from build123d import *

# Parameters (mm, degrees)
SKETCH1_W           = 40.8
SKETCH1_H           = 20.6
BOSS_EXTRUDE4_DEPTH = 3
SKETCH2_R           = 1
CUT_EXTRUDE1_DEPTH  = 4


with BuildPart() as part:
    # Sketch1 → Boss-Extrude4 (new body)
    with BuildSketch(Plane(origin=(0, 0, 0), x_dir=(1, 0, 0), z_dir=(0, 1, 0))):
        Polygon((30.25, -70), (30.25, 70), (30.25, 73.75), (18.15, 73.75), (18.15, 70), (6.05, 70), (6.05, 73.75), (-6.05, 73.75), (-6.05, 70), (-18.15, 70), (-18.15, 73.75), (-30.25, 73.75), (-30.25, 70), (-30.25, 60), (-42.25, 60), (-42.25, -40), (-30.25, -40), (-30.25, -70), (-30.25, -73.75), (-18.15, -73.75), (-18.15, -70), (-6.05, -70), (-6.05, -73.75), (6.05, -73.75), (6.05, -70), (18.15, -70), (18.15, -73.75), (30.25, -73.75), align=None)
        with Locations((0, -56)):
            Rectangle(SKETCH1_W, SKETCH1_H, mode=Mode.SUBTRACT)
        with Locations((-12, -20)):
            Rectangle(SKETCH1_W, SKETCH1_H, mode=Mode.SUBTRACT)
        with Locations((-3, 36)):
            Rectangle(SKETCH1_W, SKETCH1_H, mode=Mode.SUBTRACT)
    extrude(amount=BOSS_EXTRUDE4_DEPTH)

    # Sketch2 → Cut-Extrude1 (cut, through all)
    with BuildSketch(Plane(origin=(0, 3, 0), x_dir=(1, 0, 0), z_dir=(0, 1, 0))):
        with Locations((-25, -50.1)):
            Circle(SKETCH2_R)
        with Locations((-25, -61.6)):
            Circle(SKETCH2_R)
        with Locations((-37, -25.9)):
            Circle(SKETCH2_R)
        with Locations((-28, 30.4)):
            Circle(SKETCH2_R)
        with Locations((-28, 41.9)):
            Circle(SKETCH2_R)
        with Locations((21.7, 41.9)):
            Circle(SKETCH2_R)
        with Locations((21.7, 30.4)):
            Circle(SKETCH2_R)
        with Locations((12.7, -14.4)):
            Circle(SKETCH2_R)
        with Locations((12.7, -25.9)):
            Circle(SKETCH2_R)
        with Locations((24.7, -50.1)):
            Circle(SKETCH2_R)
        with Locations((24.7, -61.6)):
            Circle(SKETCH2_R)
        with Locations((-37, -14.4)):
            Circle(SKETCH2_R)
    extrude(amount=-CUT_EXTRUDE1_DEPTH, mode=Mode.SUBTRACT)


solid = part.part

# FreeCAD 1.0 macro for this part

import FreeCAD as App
import Part
import Sketcher
Q = App.Units.Quantity


def add_polygon(sketch, points):
    """Adds a closed chain of lines whose ends are joined by coincident constraints."""
    first, n = sketch.GeometryCount, len(points)
    for a, b in zip(points, points[1:] + points[:1]):
        sketch.addGeometry(Part.LineSegment(App.Vector(*a, 0), App.Vector(*b, 0)), False)
    for i in range(n):
        sketch.addConstraint(Sketcher.Constraint("Coincident", first + i, 2, first + (i + 1) % n, 1))

doc = App.newDocument("Part")
body = doc.addObject("PartDesign::Body", "Body")

sketch1 = body.newObject("Sketcher::SketchObject", "Sketch")
sketch1.AttachmentSupport = (doc.getObject("XZ_Plane"), [""])
sketch1.MapMode = "FlatFace"
add_polygon(sketch1, [(30.25, -73.75), (18.15, -73.75), (18.15, -70), (6.05, -70), (6.05, -73.75), (-6.05, -73.75), (-6.05, -70), (-18.15, -70), (-18.15, -73.75), (-30.25, -73.75), (-30.25, -60), (-42.25, -60), (-42.25, 40), (-30.25, 40), (-30.25, 73.75), (-18.15, 73.75), (-18.15, 70), (-6.05, 70), (-6.05, 73.75), (6.05, 73.75), (6.05, 70), (18.15, 70), (18.15, 73.75), (30.25, 73.75)])
add_polygon(sketch1, [(8.4, 30.3), (-32.4, 30.3), (-32.4, 9.7), (8.4, 9.7)])
add_polygon(sketch1, [(20.4, 66.3), (-20.4, 66.3), (-20.4, 45.7), (20.4, 45.7)])
add_polygon(sketch1, [(17.4, -25.7), (-23.4, -25.7), (-23.4, -46.3), (17.4, -46.3)])
sketch1.addConstraint(Sketcher.Constraint("Horizontal", 0))
sketch1.addConstraint(Sketcher.Constraint("Vertical", 1))
sketch1.addConstraint(Sketcher.Constraint("Horizontal", 2))
sketch1.addConstraint(Sketcher.Constraint("Vertical", 3))
sketch1.addConstraint(Sketcher.Constraint("Horizontal", 4))
sketch1.addConstraint(Sketcher.Constraint("Vertical", 5))
sketch1.addConstraint(Sketcher.Constraint("Horizontal", 6))
sketch1.addConstraint(Sketcher.Constraint("Vertical", 7))
sketch1.addConstraint(Sketcher.Constraint("Horizontal", 8))
sketch1.addConstraint(Sketcher.Constraint("Vertical", 9))
sketch1.addConstraint(Sketcher.Constraint("Horizontal", 10))
sketch1.addConstraint(Sketcher.Constraint("Vertical", 11))
sketch1.addConstraint(Sketcher.Constraint("Horizontal", 12))
sketch1.addConstraint(Sketcher.Constraint("Vertical", 13))
sketch1.addConstraint(Sketcher.Constraint("Horizontal", 14))
sketch1.addConstraint(Sketcher.Constraint("Vertical", 15))
sketch1.addConstraint(Sketcher.Constraint("Horizontal", 16))
sketch1.addConstraint(Sketcher.Constraint("Vertical", 17))
sketch1.addConstraint(Sketcher.Constraint("Horizontal", 18))
sketch1.addConstraint(Sketcher.Constraint("Vertical", 19))
sketch1.addConstraint(Sketcher.Constraint("Horizontal", 20))
sketch1.addConstraint(Sketcher.Constraint("Vertical", 21))
sketch1.addConstraint(Sketcher.Constraint("Horizontal", 22))
sketch1.addConstraint(Sketcher.Constraint("Vertical", 23))
sketch1.addConstraint(Sketcher.Constraint("Horizontal", 24))
sketch1.addConstraint(Sketcher.Constraint("Vertical", 25))
sketch1.addConstraint(Sketcher.Constraint("Horizontal", 26))
sketch1.addConstraint(Sketcher.Constraint("Vertical", 27))
sketch1.addConstraint(Sketcher.Constraint("Horizontal", 28))
sketch1.addConstraint(Sketcher.Constraint("Vertical", 29))
sketch1.addConstraint(Sketcher.Constraint("Horizontal", 30))
sketch1.addConstraint(Sketcher.Constraint("Vertical", 31))
sketch1.addConstraint(Sketcher.Constraint("Horizontal", 32))
sketch1.addConstraint(Sketcher.Constraint("Vertical", 33))
sketch1.addConstraint(Sketcher.Constraint("Horizontal", 34))
sketch1.addConstraint(Sketcher.Constraint("Vertical", 35))
sketch1.addConstraint(Sketcher.Constraint("Symmetric", 0, 2, 14, 2, -1, 1))
sketch1.addConstraint(Sketcher.Constraint("Symmetric", 2, 2, 16, 2, -1, 1))
sketch1.addConstraint(Sketcher.Constraint("Symmetric", 4, 2, 18, 2, -1, 1))
sketch1.addConstraint(Sketcher.Constraint("Symmetric", 6, 2, 20, 2, -1, 1))
sketch1.addConstraint(Sketcher.Constraint("Symmetric", 8, 2, 22, 2, -1, 1))
sketch1.addConstraint(Sketcher.Constraint("Symmetric", 2, 2, 5, 2, -2))
sketch1.addConstraint(Sketcher.Constraint("Symmetric", 0, 2, 7, 2, -2))
sketch1.addConstraint(Sketcher.Constraint("Horizontal", 0, 2, 3, 2))
sketch1.addConstraint(Sketcher.Constraint("Vertical", 9, 2, 12, 2))
sketch1.addConstraint(Sketcher.Constraint("Equal", 0, 2))
sketch1.addConstraint(Sketcher.Constraint("Equal", 2, 4))
sketch1.addConstraint(Sketcher.Constraint("Equal", 26, 28))
sketch1.addConstraint(Sketcher.Constraint("Equal", 30, 32))
sketch1.addConstraint(Sketcher.Constraint("Equal", 27, 29))
sketch1.addConstraint(Sketcher.Constraint("Equal", 31, 33))
sketch1.addConstraint(Sketcher.Constraint("DistanceX", 10, 2, 10, 1, Q("12 mm")))
sketch1.addConstraint(Sketcher.Constraint("DistanceY", 11, 1, 11, 2, Q("100 mm")))
sketch1.addConstraint(Sketcher.Constraint("DistanceX", 0, 2, 0, 1, Q("12.1 mm")))
sketch1.addConstraint(Sketcher.Constraint("DistanceX", 24, 2, 24, 1, Q("40.8 mm")))
sketch1.addConstraint(Sketcher.Constraint("DistanceY", 23, 2, 23, 1, Q("147.5 mm")))
sketch1.addConstraint(Sketcher.Constraint("DistanceY", 25, 2, 25, 1, Q("20.6 mm")))
sketch1.addConstraint(Sketcher.Constraint("DistanceY", 1, 2, -1, 1, Q("70 mm")))
sketch1.addConstraint(Sketcher.Constraint("DistanceY", 9, 2, -1, 1, Q("60 mm")))
sketch1.addConstraint(Sketcher.Constraint("DistanceX", 24, 2, 29, 2, Q("12 mm")))
sketch1.addConstraint(Sketcher.Constraint("DistanceX", 25, 2, 32, 2, Q("9 mm")))
sketch1.addConstraint(Sketcher.Constraint("DistanceX", 24, 2, -1, 1, Q("32.4 mm")))
sketch1.addConstraint(Sketcher.Constraint("DistanceY", -1, 1, 24, 2, Q("30.3 mm")))
sketch1.addConstraint(Sketcher.Constraint("DistanceY", -1, 1, 28, 2, Q("66.3 mm")))
sketch1.addConstraint(Sketcher.Constraint("DistanceY", 32, 2, -1, 1, Q("25.7 mm")))
pad1 = body.newObject("PartDesign::Pad", "Pad")
pad1.Profile = sketch1
pad1.Length = 3
pad1.Reversed = True

sketch2 = body.newObject("Sketcher::SketchObject", "Sketch001")
sketch2.AttachmentSupport = (doc.getObject("XZ_Plane"), [""])
sketch2.MapMode = "FlatFace"
sketch2.AttachmentOffset = App.Placement(App.Vector(0, 0, -3), App.Rotation())
sketch2.addGeometry(Part.Circle(App.Vector(-25, 50.1, 0), App.Vector(0, 0, 1), 1), False)
sketch2.addGeometry(Part.Circle(App.Vector(-25, 61.6, 0), App.Vector(0, 0, 1), 1), False)
sketch2.addGeometry(Part.Circle(App.Vector(-37, 25.9, 0), App.Vector(0, 0, 1), 1), False)
sketch2.addGeometry(Part.Circle(App.Vector(-28, -30.4, 0), App.Vector(0, 0, 1), 1), False)
sketch2.addGeometry(Part.Circle(App.Vector(-28, -41.9, 0), App.Vector(0, 0, 1), 1), False)
sketch2.addGeometry(Part.Circle(App.Vector(21.7, -41.9, 0), App.Vector(0, 0, 1), 1), False)
sketch2.addGeometry(Part.Circle(App.Vector(21.7, -30.4, 0), App.Vector(0, 0, 1), 1), False)
sketch2.addGeometry(Part.Circle(App.Vector(12.7, 14.4, 0), App.Vector(0, 0, 1), 1), False)
sketch2.addGeometry(Part.Circle(App.Vector(12.7, 25.9, 0), App.Vector(0, 0, 1), 1), False)
sketch2.addGeometry(Part.Circle(App.Vector(24.7, 50.1, 0), App.Vector(0, 0, 1), 1), False)
sketch2.addGeometry(Part.Circle(App.Vector(24.7, 61.6, 0), App.Vector(0, 0, 1), 1), False)
sketch2.addGeometry(Part.Circle(App.Vector(-37, 14.4, 0), App.Vector(0, 0, 1), 1), False)
sketch2.addConstraint(Sketcher.Constraint("Equal", 0, 1))
sketch2.addConstraint(Sketcher.Constraint("Equal", 1, 2))
sketch2.addConstraint(Sketcher.Constraint("Equal", 2, 3))
sketch2.addConstraint(Sketcher.Constraint("Equal", 3, 4))
sketch2.addConstraint(Sketcher.Constraint("Equal", 4, 5))
sketch2.addConstraint(Sketcher.Constraint("Equal", 5, 6))
sketch2.addConstraint(Sketcher.Constraint("Equal", 6, 7))
sketch2.addConstraint(Sketcher.Constraint("Equal", 7, 8))
sketch2.addConstraint(Sketcher.Constraint("Equal", 8, 9))
sketch2.addConstraint(Sketcher.Constraint("Equal", 9, 10))
sketch2.addConstraint(Sketcher.Constraint("Equal", 10, 11))
sketch2.addConstraint(Sketcher.Constraint("Horizontal", 4, 3, 5, 3))
sketch2.addConstraint(Sketcher.Constraint("Horizontal", 3, 3, 6, 3))
sketch2.addConstraint(Sketcher.Constraint("Horizontal", 2, 3, 8, 3))
sketch2.addConstraint(Sketcher.Constraint("Horizontal", 0, 3, 9, 3))
sketch2.addConstraint(Sketcher.Constraint("Horizontal", 1, 3, 10, 3))
sketch2.addConstraint(Sketcher.Constraint("Horizontal", 7, 3, 11, 3))
sketch2.addConstraint(Sketcher.Constraint("Vertical", 0, 3, 1, 3))
sketch2.addConstraint(Sketcher.Constraint("Vertical", 3, 3, 4, 3))
sketch2.addConstraint(Sketcher.Constraint("Vertical", 5, 3, 6, 3))
sketch2.addConstraint(Sketcher.Constraint("Vertical", 7, 3, 8, 3))
sketch2.addConstraint(Sketcher.Constraint("Vertical", 9, 3, 10, 3))
sketch2.addConstraint(Sketcher.Constraint("Vertical", 2, 3, 11, 3))
sketch2.addConstraint(Sketcher.Constraint("Diameter", 0, Q("2 mm")))
sketch2.addConstraint(Sketcher.Constraint("DistanceX", 0, 3, -1, 1, Q("25 mm")))
sketch2.addConstraint(Sketcher.Constraint("DistanceX", 2, 3, -1, 1, Q("37 mm")))
sketch2.addConstraint(Sketcher.Constraint("DistanceX", 3, 3, -1, 1, Q("28 mm")))
sketch2.addConstraint(Sketcher.Constraint("DistanceY", 3, 3, 1, 3, Q("92 mm")))
sketch2.addConstraint(Sketcher.Constraint("DistanceY", 4, 3, 0, 3, Q("92 mm")))
sketch2.addConstraint(Sketcher.Constraint("DistanceX", 7, 3, 6, 3, Q("9 mm")))
sketch2.addConstraint(Sketcher.Constraint("DistanceX", 8, 3, 9, 3, Q("12 mm")))
sketch2.addConstraint(Sketcher.Constraint("DistanceY", -1, 1, 0, 3, Q("50.1 mm")))
sketch2.addConstraint(Sketcher.Constraint("DistanceY", -1, 1, 1, 3, Q("61.6 mm")))
sketch2.addConstraint(Sketcher.Constraint("DistanceY", -1, 1, 2, 3, Q("25.9 mm")))
sketch2.addConstraint(Sketcher.Constraint("DistanceX", -1, 1, 5, 3, Q("21.7 mm")))
sketch2.addConstraint(Sketcher.Constraint("DistanceY", -1, 1, 7, 3, Q("14.4 mm")))
pocket1 = body.newObject("PartDesign::Pocket", "Pocket")
pocket1.Profile = sketch2
pocket1.Type = "ThroughAll"
pocket1.Reversed = True

doc.recompute()
